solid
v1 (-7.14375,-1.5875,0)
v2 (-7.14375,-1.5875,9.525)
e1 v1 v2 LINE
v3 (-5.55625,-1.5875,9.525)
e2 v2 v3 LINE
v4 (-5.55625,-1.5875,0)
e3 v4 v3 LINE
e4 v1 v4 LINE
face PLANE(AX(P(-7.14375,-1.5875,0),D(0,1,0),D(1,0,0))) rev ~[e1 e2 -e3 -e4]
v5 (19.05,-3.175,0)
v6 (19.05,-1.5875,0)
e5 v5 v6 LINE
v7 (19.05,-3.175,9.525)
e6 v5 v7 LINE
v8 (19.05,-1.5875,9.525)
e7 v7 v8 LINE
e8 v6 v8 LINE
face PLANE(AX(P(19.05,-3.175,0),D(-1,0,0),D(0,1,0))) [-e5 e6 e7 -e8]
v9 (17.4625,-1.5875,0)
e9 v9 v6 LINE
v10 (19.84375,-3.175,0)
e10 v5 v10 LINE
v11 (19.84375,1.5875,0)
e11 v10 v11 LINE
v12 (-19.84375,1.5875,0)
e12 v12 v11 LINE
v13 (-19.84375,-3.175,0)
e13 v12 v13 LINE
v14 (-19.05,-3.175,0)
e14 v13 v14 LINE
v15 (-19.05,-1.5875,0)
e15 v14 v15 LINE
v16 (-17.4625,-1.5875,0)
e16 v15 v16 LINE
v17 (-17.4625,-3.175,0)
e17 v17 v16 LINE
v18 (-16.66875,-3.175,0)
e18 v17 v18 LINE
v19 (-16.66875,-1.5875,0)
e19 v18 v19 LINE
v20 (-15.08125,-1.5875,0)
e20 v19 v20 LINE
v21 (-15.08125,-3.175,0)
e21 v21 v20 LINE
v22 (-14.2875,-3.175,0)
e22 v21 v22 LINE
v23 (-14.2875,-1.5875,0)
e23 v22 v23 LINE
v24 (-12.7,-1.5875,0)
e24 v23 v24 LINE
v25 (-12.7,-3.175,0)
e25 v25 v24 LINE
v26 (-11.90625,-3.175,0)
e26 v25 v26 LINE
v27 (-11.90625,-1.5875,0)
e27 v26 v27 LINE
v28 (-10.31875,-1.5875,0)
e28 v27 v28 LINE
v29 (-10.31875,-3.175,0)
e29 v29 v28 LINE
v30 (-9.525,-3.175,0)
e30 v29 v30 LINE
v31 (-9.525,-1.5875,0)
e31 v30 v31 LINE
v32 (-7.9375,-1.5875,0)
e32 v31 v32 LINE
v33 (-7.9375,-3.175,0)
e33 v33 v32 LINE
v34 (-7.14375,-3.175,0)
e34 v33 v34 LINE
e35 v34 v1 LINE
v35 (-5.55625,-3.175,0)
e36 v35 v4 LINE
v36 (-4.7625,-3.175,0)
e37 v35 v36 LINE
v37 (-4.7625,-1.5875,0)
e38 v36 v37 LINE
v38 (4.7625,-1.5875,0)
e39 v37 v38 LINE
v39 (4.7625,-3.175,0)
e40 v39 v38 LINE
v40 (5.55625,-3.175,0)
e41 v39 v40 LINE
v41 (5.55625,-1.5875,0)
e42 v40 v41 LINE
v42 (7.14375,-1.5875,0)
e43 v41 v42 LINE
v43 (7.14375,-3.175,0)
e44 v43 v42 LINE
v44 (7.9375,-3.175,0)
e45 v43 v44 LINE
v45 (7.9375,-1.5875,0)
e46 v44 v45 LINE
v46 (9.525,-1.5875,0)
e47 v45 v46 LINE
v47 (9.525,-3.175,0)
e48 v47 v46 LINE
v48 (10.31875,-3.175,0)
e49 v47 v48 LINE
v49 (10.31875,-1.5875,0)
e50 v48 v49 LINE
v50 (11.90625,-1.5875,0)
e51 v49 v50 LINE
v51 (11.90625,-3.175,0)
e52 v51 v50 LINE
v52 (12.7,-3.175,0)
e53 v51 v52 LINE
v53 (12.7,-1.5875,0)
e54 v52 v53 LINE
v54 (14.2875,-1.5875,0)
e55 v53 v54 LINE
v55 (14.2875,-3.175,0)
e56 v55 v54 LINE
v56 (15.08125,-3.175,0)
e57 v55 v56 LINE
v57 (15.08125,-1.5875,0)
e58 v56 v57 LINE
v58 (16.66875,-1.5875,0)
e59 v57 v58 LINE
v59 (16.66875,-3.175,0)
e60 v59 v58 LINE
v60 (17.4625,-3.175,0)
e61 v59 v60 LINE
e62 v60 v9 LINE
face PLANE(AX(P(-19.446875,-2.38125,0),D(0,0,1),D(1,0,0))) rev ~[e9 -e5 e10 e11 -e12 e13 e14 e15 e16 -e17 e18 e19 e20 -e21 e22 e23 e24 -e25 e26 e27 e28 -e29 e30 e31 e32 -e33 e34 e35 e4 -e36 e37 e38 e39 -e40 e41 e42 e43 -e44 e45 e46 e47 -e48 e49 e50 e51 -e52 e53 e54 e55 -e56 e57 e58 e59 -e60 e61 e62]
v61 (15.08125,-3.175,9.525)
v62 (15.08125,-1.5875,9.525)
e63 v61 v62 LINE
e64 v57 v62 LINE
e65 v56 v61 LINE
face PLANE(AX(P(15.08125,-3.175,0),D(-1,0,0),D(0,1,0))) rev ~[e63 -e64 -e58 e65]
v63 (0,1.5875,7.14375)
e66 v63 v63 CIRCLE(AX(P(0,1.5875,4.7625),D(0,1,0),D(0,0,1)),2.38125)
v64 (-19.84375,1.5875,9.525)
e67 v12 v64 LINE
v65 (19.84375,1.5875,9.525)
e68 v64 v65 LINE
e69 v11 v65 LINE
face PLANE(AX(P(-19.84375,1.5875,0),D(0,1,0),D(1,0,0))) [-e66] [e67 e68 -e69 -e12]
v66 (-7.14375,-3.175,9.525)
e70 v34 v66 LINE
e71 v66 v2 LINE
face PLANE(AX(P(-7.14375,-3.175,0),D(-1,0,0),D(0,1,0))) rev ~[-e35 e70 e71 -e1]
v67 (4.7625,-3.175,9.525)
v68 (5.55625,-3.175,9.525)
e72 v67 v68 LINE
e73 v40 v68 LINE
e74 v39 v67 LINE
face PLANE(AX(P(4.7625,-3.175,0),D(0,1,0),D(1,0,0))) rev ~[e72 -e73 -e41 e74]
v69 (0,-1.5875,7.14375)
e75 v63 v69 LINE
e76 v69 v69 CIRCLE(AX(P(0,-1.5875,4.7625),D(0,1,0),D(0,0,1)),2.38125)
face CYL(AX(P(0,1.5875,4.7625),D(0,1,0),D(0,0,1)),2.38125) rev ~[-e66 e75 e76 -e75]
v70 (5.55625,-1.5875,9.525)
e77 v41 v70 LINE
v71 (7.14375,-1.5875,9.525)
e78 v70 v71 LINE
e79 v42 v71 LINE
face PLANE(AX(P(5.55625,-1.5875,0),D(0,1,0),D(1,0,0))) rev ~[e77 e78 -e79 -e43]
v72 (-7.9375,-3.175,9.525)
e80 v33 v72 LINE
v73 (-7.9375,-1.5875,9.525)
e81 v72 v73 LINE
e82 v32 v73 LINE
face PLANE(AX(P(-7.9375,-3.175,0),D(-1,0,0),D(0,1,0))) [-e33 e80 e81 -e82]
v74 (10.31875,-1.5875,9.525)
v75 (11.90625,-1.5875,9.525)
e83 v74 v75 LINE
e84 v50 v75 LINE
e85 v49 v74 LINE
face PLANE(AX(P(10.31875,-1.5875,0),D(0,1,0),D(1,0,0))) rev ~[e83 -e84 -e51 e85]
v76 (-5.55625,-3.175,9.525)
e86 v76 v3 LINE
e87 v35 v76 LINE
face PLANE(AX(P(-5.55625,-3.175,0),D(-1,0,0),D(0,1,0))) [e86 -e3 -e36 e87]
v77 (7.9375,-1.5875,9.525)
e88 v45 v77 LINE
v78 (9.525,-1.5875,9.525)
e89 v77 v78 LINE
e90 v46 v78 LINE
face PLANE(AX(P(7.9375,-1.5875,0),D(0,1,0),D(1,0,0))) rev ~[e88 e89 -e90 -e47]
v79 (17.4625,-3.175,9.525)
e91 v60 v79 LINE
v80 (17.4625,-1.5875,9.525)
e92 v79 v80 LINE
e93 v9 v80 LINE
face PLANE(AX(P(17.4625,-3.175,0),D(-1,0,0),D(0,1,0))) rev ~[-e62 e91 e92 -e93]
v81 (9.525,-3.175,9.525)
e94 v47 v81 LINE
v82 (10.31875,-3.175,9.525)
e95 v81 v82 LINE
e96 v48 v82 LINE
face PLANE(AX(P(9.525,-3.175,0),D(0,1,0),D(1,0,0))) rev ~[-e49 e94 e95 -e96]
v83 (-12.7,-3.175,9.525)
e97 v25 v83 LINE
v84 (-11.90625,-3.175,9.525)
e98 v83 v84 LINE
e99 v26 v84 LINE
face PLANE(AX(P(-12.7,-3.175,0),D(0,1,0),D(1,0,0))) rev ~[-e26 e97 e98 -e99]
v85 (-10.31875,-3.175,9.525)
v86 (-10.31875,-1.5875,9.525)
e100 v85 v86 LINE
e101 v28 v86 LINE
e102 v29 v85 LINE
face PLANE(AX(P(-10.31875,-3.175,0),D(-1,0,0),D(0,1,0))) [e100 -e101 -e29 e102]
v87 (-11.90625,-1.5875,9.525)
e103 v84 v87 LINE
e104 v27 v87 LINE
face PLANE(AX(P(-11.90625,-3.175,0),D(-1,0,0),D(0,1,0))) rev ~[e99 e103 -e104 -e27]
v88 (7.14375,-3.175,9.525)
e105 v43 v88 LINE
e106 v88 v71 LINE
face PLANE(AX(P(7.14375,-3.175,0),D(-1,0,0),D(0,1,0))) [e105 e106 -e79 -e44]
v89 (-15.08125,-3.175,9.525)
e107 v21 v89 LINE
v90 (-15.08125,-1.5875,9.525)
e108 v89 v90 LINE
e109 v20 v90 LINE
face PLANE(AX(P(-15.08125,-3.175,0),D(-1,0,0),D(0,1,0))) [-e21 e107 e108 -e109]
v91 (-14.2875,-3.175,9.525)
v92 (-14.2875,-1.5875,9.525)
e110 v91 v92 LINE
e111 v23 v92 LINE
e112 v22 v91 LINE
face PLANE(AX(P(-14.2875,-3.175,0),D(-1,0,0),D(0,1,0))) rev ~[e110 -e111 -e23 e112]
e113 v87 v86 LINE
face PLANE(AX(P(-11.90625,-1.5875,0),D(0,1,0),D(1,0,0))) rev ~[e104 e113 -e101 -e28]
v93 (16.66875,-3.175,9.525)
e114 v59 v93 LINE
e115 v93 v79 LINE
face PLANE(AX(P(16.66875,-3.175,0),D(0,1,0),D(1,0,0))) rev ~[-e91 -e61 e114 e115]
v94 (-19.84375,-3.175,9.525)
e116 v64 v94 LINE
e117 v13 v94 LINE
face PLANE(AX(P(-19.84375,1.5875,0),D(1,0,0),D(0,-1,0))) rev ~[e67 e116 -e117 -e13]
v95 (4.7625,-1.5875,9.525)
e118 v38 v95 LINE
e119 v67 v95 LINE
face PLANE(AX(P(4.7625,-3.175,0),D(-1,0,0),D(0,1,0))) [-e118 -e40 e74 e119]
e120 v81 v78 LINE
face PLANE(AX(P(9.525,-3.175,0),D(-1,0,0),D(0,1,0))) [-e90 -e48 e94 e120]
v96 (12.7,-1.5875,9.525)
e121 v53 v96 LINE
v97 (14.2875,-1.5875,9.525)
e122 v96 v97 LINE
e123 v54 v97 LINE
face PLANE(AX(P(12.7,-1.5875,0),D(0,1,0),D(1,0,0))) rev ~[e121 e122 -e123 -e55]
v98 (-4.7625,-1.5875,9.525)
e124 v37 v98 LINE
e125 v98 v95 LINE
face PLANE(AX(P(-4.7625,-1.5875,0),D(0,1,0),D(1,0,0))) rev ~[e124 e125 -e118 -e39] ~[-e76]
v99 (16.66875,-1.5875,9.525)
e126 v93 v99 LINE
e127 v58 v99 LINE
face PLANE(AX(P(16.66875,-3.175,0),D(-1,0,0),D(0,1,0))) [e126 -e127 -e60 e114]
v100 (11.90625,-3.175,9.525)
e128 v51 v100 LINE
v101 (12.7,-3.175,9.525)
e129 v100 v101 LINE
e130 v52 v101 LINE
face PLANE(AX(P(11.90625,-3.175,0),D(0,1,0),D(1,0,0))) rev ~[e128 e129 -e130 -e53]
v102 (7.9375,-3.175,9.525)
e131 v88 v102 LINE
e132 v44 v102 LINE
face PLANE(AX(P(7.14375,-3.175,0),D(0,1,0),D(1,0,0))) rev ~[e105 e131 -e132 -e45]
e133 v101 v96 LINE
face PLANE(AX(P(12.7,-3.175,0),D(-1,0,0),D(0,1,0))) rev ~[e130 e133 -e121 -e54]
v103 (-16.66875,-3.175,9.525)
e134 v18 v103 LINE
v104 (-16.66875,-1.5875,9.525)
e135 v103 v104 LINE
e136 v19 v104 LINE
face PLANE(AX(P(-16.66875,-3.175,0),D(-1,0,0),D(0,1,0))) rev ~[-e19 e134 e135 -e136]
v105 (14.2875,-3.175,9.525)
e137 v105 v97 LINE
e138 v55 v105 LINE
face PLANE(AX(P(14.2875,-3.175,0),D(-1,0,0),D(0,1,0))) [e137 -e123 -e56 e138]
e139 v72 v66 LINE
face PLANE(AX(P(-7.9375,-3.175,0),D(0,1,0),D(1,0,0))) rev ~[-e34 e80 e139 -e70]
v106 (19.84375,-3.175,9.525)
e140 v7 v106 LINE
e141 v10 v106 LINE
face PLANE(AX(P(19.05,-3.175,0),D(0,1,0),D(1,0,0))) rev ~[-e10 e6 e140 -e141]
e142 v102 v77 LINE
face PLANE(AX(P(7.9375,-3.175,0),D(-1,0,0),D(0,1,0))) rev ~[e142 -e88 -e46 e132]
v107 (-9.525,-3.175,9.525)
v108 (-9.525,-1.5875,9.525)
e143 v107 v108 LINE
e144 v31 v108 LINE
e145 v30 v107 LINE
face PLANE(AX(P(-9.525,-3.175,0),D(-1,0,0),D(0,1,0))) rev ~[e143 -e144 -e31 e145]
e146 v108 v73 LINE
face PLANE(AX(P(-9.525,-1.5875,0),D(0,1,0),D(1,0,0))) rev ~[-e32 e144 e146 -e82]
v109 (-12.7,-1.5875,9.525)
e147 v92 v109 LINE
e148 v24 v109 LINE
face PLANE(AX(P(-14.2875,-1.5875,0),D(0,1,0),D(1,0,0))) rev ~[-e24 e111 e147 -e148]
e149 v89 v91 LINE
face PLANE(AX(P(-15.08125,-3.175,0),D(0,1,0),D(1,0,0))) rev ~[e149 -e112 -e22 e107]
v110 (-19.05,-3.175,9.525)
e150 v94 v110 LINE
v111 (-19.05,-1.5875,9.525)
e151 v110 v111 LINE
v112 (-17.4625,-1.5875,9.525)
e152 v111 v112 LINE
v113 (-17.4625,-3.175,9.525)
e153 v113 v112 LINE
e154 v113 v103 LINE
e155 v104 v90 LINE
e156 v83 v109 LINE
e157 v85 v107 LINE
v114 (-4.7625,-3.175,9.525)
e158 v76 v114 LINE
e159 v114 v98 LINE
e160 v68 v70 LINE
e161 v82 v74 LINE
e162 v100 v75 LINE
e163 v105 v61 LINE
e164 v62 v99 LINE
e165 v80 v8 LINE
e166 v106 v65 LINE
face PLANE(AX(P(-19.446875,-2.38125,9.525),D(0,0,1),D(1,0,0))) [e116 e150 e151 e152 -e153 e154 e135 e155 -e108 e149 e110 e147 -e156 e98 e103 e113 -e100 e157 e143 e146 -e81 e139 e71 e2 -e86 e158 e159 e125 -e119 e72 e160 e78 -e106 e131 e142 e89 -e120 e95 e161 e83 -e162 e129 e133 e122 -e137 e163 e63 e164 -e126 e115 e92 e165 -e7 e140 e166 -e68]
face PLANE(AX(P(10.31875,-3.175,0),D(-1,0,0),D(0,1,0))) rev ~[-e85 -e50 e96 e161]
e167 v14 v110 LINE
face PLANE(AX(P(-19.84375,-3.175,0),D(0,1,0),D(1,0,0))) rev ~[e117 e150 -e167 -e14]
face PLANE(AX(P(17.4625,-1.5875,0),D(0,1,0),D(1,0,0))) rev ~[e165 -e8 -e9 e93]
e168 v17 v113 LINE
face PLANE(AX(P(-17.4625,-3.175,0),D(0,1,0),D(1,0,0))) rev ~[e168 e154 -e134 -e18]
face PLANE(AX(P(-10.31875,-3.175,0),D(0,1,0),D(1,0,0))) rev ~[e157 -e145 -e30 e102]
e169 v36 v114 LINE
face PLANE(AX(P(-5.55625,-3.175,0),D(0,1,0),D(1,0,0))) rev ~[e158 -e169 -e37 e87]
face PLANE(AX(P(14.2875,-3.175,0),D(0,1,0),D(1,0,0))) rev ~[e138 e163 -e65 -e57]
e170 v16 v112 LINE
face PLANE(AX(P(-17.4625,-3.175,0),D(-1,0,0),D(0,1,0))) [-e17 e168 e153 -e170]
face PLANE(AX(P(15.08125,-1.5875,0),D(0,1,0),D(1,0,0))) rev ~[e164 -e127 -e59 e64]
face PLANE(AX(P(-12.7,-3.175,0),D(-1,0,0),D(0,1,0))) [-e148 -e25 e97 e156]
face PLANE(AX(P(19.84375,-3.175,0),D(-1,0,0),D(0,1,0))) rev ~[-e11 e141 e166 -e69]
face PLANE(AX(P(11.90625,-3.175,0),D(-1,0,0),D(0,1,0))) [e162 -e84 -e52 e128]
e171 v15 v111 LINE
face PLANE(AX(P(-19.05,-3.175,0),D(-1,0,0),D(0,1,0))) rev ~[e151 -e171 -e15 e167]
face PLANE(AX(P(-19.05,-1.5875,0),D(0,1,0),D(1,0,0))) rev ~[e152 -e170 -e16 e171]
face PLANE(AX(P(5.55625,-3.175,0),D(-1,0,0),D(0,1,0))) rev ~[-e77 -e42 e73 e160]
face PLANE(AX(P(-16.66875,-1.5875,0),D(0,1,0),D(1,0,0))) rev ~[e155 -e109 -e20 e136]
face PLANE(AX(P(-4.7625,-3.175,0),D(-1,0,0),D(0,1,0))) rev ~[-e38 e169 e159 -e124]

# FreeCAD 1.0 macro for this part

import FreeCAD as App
import Part
import Sketcher

V = App.Vector
Q = App.Units.Quantity


def add_polygon(sketch, points):
    """Adds a closed chain of lines whose ends are joined by coincident constraints."""
    first, n = sketch.GeometryCount, len(points)
    for a, b in zip(points, points[1:] + points[:1]):
        sketch.addGeometry(Part.LineSegment(App.Vector(*a, 0), App.Vector(*b, 0)), False)
    for i in range(n):
        sketch.addConstraint(Sketcher.Constraint("Coincident", first + i, 2, first + (i + 1) % n, 1))

doc = App.newDocument("Part")
params = doc.addObject("Spreadsheet::Sheet", "Params")
for row, (alias, value) in enumerate([
    ("sketch1_width", "0.03125 in"),
    ("sketch1_width2", "0.0625 in"),
    ("sketch1_height", "0.1875 in"),
    ("pad1_length", "0.375 in"),
    ("sketch2_diameter", "0.1875 in"),
    ("pocket1_length", "0.375 in"),
], start=1):
    params.set(f"A{row}", alias)
    params.set(f"B{row}", "=" + value)
    params.setAlias(f"B{row}", alias)

body = doc.addObject("PartDesign::Body", "Body")

# Sketch on XY plane
sketch1 = doc.addObject("Sketcher::SketchObject", "Sketch")
body.addObject(sketch1)
sketch1.AttachmentSupport = (doc.XY_Plane, [""])
sketch1.MapMode = "FlatFace"
add_polygon(sketch1, [(-19.84375, -3.175), (-19.05, -3.175), (-19.05, -1.5875), (-17.4625, -1.5875), (-17.4625, -3.175), (-16.66875, -3.175), (-16.66875, -1.5875), (-15.08125, -1.5875), (-15.08125, -3.175), (-14.2875, -3.175), (-14.2875, -1.5875), (-12.7, -1.5875), (-12.7, -3.175), (-11.90625, -3.175), (-11.90625, -1.5875), (-10.31875, -1.5875), (-10.31875, -3.175), (-9.525, -3.175), (-9.525, -1.5875), (-7.9375, -1.5875), (-7.9375, -3.175), (-7.14375, -3.175), (-7.14375, -1.5875), (-5.55625, -1.5875), (-5.55625, -3.175), (-4.7625, -3.175), (-4.7625, -1.5875), (4.7625, -1.5875), (4.7625, -3.175), (5.55625, -3.175), (5.55625, -1.5875), (7.14375, -1.5875), (7.14375, -3.175), (7.9375, -3.175), (7.9375, -1.5875), (9.525, -1.5875), (9.525, -3.175), (10.31875, -3.175), (10.31875, -1.5875), (11.90625, -1.5875), (11.90625, -3.175), (12.7, -3.175), (12.7, -1.5875), (14.2875, -1.5875), (14.2875, -3.175), (15.08125, -3.175), (15.08125, -1.5875), (16.66875, -1.5875), (16.66875, -3.175), (17.4625, -3.175), (17.4625, -1.5875), (19.05, -1.5875), (19.05, -3.175), (19.84375, -3.175), (19.84375, 1.5875), (-19.84375, 1.5875)])  # lines 0-55
sketch1.addConstraint(Sketcher.Constraint("Horizontal", 0))
sketch1.addConstraint(Sketcher.Constraint("Vertical", 1))
sketch1.addConstraint(Sketcher.Constraint("Horizontal", 2))
sketch1.addConstraint(Sketcher.Constraint("Vertical", 3))
sketch1.addConstraint(Sketcher.Constraint("Horizontal", 4))
sketch1.addConstraint(Sketcher.Constraint("Vertical", 5))
sketch1.addConstraint(Sketcher.Constraint("Horizontal", 6))
sketch1.addConstraint(Sketcher.Constraint("Vertical", 7))
sketch1.addConstraint(Sketcher.Constraint("Horizontal", 8))
sketch1.addConstraint(Sketcher.Constraint("Vertical", 9))
sketch1.addConstraint(Sketcher.Constraint("Horizontal", 10))
sketch1.addConstraint(Sketcher.Constraint("Vertical", 11))
sketch1.addConstraint(Sketcher.Constraint("Horizontal", 12))
sketch1.addConstraint(Sketcher.Constraint("Vertical", 13))
sketch1.addConstraint(Sketcher.Constraint("Horizontal", 14))
sketch1.addConstraint(Sketcher.Constraint("Vertical", 15))
sketch1.addConstraint(Sketcher.Constraint("Horizontal", 16))
sketch1.addConstraint(Sketcher.Constraint("Vertical", 17))
sketch1.addConstraint(Sketcher.Constraint("Horizontal", 18))
sketch1.addConstraint(Sketcher.Constraint("Vertical", 19))
sketch1.addConstraint(Sketcher.Constraint("Horizontal", 20))
sketch1.addConstraint(Sketcher.Constraint("Vertical", 21))
sketch1.addConstraint(Sketcher.Constraint("Horizontal", 22))
sketch1.addConstraint(Sketcher.Constraint("Vertical", 23))
sketch1.addConstraint(Sketcher.Constraint("Horizontal", 24))
sketch1.addConstraint(Sketcher.Constraint("Vertical", 25))
sketch1.addConstraint(Sketcher.Constraint("Horizontal", 26))
sketch1.addConstraint(Sketcher.Constraint("Vertical", 27))
sketch1.addConstraint(Sketcher.Constraint("Horizontal", 28))
sketch1.addConstraint(Sketcher.Constraint("Vertical", 29))
sketch1.addConstraint(Sketcher.Constraint("Horizontal", 30))
sketch1.addConstraint(Sketcher.Constraint("Vertical", 31))
sketch1.addConstraint(Sketcher.Constraint("Horizontal", 32))
sketch1.addConstraint(Sketcher.Constraint("Vertical", 33))
sketch1.addConstraint(Sketcher.Constraint("Horizontal", 34))
sketch1.addConstraint(Sketcher.Constraint("Vertical", 35))
sketch1.addConstraint(Sketcher.Constraint("Horizontal", 36))
sketch1.addConstraint(Sketcher.Constraint("Vertical", 37))
sketch1.addConstraint(Sketcher.Constraint("Horizontal", 38))
sketch1.addConstraint(Sketcher.Constraint("Vertical", 39))
sketch1.addConstraint(Sketcher.Constraint("Horizontal", 40))
sketch1.addConstraint(Sketcher.Constraint("Vertical", 41))
sketch1.addConstraint(Sketcher.Constraint("Horizontal", 42))
sketch1.addConstraint(Sketcher.Constraint("Vertical", 43))
sketch1.addConstraint(Sketcher.Constraint("Horizontal", 44))
sketch1.addConstraint(Sketcher.Constraint("Vertical", 45))
sketch1.addConstraint(Sketcher.Constraint("Horizontal", 46))
sketch1.addConstraint(Sketcher.Constraint("Vertical", 47))
sketch1.addConstraint(Sketcher.Constraint("Horizontal", 48))
sketch1.addConstraint(Sketcher.Constraint("Vertical", 49))
sketch1.addConstraint(Sketcher.Constraint("Horizontal", 50))
sketch1.addConstraint(Sketcher.Constraint("Vertical", 51))
sketch1.addConstraint(Sketcher.Constraint("Horizontal", 52))
sketch1.addConstraint(Sketcher.Constraint("Vertical", 53))
sketch1.addConstraint(Sketcher.Constraint("Horizontal", 54))
sketch1.addConstraint(Sketcher.Constraint("Vertical", 55))
sketch1.addConstraint(Sketcher.Constraint("Symmetric", 24, 2, 27, 2, -2))
sketch1.addConstraint(Sketcher.Constraint("Symmetric", 22, 2, 29, 2, -2))
sketch1.addConstraint(Sketcher.Constraint("Symmetric", 20, 2, 31, 2, -2))
sketch1.addConstraint(Sketcher.Constraint("Symmetric", 18, 2, 33, 2, -2))
sketch1.addConstraint(Sketcher.Constraint("Symmetric", 16, 2, 35, 2, -2))
sketch1.addConstraint(Sketcher.Constraint("Symmetric", 14, 2, 37, 2, -2))
sketch1.addConstraint(Sketcher.Constraint("Symmetric", 12, 2, 39, 2, -2))
sketch1.addConstraint(Sketcher.Constraint("Symmetric", 10, 2, 41, 2, -2))
sketch1.addConstraint(Sketcher.Constraint("Symmetric", 8, 2, 43, 2, -2))
sketch1.addConstraint(Sketcher.Constraint("Symmetric", 6, 2, 45, 2, -2))
sketch1.addConstraint(Sketcher.Constraint("Symmetric", 4, 2, 47, 2, -2))
sketch1.addConstraint(Sketcher.Constraint("Symmetric", 2, 2, 49, 2, -2))
sketch1.addConstraint(Sketcher.Constraint("Symmetric", 0, 2, 51, 2, -2))
sketch1.addConstraint(Sketcher.Constraint("Horizontal", 0, 2, 3, 2))
sketch1.addConstraint(Sketcher.Constraint("Horizontal", 2, 2, 5, 2))
sketch1.addConstraint(Sketcher.Constraint("Horizontal", 4, 2, 7, 2))
sketch1.addConstraint(Sketcher.Constraint("Horizontal", 6, 2, 9, 2))
sketch1.addConstraint(Sketcher.Constraint("Horizontal", 8, 2, 11, 2))
sketch1.addConstraint(Sketcher.Constraint("Horizontal", 10, 2, 13, 2))
sketch1.addConstraint(Sketcher.Constraint("Horizontal", 12, 2, 15, 2))
sketch1.addConstraint(Sketcher.Constraint("Horizontal", 14, 2, 17, 2))
sketch1.addConstraint(Sketcher.Constraint("Horizontal", 16, 2, 19, 2))
sketch1.addConstraint(Sketcher.Constraint("Horizontal", 18, 2, 21, 2))
sketch1.addConstraint(Sketcher.Constraint("Horizontal", 20, 2, 23, 2))
sketch1.addConstraint(Sketcher.Constraint("Horizontal", 22, 2, 25, 2))
sketch1.addConstraint(Sketcher.Constraint("Equal", 0, 4))
sketch1.addConstraint(Sketcher.Constraint("Equal", 2, 6))
sketch1.addConstraint(Sketcher.Constraint("Equal", 4, 8))
sketch1.addConstraint(Sketcher.Constraint("Equal", 6, 10))
sketch1.addConstraint(Sketcher.Constraint("Equal", 8, 12))
sketch1.addConstraint(Sketcher.Constraint("Equal", 10, 14))
sketch1.addConstraint(Sketcher.Constraint("Equal", 12, 16))
sketch1.addConstraint(Sketcher.Constraint("Equal", 14, 18))
sketch1.addConstraint(Sketcher.Constraint("Equal", 16, 20))
sketch1.addConstraint(Sketcher.Constraint("Equal", 18, 22))
sketch1.addConstraint(Sketcher.Constraint("Equal", 20, 24))
sketch1.addConstraint(Sketcher.Constraint("Equal", 48, 52))
sketch1.addConstraint(Sketcher.Constraint("Equal", 50, 1))
sketch1.addConstraint(Sketcher.Constraint("DistanceX", 10, 2, -1, 1, Q("0.5 in")))
sketch1.addConstraint(Sketcher.Constraint("DistanceX", 0, 1, 0, 2, Q("0.03125 in")))
sketch1.addConstraint(Sketcher.Constraint("DistanceX", 2, 1, 2, 2, Q("0.0625 in")))
sketch1.addConstraint(Sketcher.Constraint("DistanceY", 53, 1, 53, 2, Q("0.1875 in")))
sketch1.addConstraint(Sketcher.Constraint("DistanceY", 0, 2, -1, 1, Q("0.125 in")))
sketch1.setExpression("Constraints[151]", "Params.sketch1_width")
sketch1.setExpression("Constraints[152]", "Params.sketch1_width2")
sketch1.setExpression("Constraints[153]", "Params.sketch1_height")
pad1 = doc.addObject("PartDesign::Pad", "Pad")
body.addObject(pad1)
pad1.Profile = sketch1
pad1.setExpression("Length", "Params.pad1_length")

# Sketch on XZ plane
sketch2 = doc.addObject("Sketcher::SketchObject", "Sketch001")
body.addObject(sketch2)
sketch2.AttachmentSupport = (doc.XZ_Plane, [""])
sketch2.MapMode = "FlatFace"
sketch2.AttachmentOffset = App.Placement(V(0, 0, -0.0625 * 25.4), App.Rotation())
sketch2.addGeometry(Part.Circle(V(0, 4.7625, 0), V(0, 0, 1), 2.38125), False)
sketch2.addConstraint(Sketcher.Constraint("PointOnObject", 0, 3, -2))
sketch2.addConstraint(Sketcher.Constraint("Diameter", 0, Q("0.1875 in")))
sketch2.addConstraint(Sketcher.Constraint("DistanceY", -1, 1, 0, 3, Q("0.1875 in")))
sketch2.setExpression("Constraints[1]", "Params.sketch2_diameter")
pocket1 = doc.addObject("PartDesign::Pocket", "Pocket")
body.addObject(pocket1)
pocket1.Profile = sketch2
pocket1.setExpression("Length", "Params.pocket1_length")
pocket1.Reversed = True

doc.recompute()
